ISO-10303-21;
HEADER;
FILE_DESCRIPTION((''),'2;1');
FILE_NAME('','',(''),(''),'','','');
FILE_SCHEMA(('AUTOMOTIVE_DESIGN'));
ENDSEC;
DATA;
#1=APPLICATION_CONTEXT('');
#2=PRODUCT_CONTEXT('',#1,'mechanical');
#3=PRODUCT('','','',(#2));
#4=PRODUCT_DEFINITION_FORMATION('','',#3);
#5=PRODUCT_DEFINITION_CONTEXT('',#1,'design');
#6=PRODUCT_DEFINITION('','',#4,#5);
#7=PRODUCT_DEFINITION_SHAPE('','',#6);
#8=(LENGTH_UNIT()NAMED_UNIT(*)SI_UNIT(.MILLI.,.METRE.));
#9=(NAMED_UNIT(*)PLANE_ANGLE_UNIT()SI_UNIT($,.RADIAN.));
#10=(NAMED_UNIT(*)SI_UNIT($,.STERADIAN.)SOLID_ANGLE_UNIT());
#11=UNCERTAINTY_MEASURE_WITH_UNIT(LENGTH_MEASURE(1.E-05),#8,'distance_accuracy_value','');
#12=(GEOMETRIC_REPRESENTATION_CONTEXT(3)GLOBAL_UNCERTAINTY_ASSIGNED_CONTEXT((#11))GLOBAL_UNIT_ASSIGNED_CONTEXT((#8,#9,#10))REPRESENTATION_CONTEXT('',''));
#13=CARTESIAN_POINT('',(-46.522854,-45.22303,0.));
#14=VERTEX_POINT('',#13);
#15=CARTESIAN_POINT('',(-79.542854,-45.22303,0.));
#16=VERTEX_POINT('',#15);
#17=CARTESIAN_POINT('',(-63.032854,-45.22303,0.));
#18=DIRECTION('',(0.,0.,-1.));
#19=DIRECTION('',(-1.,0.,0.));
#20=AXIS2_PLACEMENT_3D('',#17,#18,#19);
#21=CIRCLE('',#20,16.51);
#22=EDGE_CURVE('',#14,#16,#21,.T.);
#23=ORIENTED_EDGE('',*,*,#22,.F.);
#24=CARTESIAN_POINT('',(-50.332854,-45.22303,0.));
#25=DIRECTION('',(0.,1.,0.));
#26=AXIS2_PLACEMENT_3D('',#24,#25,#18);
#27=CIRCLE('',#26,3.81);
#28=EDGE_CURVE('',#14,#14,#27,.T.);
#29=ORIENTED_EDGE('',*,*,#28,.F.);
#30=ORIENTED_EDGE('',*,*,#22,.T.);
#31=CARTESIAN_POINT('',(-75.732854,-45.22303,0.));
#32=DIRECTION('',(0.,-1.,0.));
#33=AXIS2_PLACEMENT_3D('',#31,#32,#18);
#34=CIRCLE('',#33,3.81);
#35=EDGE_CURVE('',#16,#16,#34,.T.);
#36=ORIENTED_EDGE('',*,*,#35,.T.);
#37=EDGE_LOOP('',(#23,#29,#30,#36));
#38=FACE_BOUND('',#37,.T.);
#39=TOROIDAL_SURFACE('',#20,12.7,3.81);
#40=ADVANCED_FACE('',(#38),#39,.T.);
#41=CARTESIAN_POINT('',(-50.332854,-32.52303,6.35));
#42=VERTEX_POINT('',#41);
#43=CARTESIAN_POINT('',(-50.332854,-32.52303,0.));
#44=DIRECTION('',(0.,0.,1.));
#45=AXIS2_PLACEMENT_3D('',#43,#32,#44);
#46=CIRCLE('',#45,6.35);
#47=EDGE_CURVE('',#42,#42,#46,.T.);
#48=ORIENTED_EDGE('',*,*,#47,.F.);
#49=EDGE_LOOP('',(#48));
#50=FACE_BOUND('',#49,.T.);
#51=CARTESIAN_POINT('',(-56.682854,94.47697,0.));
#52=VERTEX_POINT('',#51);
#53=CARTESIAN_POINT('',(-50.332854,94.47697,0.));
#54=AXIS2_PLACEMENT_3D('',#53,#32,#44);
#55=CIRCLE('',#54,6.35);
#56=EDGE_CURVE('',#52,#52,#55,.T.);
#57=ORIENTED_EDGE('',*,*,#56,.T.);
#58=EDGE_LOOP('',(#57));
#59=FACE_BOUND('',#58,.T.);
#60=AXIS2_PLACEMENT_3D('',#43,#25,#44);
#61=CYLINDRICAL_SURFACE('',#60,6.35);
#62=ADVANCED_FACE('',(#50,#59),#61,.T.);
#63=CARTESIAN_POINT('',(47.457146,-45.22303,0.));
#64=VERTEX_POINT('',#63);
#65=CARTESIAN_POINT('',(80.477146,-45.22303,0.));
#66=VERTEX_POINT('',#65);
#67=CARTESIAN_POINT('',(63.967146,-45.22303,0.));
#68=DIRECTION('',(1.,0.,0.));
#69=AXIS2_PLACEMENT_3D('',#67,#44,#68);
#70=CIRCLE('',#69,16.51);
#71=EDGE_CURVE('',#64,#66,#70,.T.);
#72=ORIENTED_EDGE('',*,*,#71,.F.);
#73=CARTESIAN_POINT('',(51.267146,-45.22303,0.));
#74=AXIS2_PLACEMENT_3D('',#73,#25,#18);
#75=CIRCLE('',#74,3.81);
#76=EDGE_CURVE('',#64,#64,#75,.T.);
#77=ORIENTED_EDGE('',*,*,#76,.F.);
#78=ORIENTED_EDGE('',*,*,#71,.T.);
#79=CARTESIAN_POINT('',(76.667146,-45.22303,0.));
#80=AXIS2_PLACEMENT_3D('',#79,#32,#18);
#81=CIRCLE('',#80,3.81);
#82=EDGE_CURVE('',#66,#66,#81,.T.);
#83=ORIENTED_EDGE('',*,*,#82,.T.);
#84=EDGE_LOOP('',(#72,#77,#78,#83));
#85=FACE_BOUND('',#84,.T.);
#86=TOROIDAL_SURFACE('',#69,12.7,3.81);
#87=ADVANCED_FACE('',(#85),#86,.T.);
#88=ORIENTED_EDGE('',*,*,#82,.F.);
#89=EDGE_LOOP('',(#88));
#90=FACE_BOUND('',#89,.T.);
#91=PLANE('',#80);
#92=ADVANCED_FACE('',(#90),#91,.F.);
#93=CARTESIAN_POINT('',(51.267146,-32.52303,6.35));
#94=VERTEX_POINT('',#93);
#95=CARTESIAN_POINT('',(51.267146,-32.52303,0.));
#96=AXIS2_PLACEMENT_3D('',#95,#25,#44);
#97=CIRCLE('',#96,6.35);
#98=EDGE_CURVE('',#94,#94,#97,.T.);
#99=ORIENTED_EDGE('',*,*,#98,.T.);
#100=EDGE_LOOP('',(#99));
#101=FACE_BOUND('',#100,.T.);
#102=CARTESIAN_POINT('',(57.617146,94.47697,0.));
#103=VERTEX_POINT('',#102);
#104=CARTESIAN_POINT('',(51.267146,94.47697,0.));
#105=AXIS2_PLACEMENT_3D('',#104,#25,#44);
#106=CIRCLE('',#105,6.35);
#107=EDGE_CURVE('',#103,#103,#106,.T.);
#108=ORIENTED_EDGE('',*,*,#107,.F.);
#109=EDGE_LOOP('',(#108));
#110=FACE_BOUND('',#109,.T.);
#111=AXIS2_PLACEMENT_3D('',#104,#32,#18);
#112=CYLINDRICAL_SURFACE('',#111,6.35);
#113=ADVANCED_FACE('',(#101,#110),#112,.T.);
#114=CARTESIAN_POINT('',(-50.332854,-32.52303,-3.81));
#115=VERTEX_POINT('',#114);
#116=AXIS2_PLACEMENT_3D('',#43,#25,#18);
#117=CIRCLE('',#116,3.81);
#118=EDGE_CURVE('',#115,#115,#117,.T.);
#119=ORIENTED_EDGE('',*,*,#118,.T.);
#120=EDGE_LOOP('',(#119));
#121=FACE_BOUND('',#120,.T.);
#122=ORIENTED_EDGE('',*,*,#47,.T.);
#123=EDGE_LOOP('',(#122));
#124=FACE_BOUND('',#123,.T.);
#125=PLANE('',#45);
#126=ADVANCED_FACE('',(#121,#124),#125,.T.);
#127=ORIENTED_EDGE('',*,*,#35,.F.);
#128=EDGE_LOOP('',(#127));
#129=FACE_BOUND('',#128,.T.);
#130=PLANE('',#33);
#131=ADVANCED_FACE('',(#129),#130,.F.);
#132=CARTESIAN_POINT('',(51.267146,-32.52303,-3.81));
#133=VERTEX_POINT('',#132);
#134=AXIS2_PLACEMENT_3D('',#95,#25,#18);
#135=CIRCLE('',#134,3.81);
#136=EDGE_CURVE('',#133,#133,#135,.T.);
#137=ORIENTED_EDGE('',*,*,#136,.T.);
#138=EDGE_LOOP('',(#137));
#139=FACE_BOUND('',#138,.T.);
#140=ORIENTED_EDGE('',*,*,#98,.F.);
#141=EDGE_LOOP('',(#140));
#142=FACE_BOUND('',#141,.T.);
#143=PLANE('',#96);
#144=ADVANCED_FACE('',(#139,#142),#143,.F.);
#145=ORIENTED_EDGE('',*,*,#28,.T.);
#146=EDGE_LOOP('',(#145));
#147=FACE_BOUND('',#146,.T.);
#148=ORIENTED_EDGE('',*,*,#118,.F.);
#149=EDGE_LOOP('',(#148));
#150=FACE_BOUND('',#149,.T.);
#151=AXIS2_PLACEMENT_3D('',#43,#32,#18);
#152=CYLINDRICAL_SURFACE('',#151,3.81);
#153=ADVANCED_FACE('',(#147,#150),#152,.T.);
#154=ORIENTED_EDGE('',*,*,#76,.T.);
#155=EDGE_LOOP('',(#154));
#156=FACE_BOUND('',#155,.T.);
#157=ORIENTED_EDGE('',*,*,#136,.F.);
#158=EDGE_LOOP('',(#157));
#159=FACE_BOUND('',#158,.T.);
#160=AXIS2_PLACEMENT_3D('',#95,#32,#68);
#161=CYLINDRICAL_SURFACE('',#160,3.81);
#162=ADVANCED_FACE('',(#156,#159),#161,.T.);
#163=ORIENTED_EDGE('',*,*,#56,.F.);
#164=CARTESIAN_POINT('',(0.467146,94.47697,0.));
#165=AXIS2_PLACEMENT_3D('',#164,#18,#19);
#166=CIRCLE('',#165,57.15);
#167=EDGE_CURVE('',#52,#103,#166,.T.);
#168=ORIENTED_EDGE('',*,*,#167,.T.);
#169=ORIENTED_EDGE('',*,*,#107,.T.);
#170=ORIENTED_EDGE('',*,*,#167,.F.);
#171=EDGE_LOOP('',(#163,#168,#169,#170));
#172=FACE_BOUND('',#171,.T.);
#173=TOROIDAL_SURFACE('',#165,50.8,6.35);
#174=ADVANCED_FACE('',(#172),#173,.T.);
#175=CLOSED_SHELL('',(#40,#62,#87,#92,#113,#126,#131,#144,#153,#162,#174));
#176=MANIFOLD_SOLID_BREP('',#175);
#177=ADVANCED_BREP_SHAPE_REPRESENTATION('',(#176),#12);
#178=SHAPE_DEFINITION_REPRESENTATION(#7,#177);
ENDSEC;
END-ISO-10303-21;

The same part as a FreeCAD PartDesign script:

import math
import FreeCAD as App
import Part
import Sketcher

V = App.Vector
Q = App.Units.Quantity

doc = App.newDocument("Part")
body = doc.addObject("PartDesign::Body", "Body")

sketch1 = doc.addObject("Sketcher::SketchObject", "Sketch")
body.addObject(sketch1)
sketch1.AttachmentSupport = (doc.XZ_Plane, [""])
sketch1.MapMode = "FlatFace"
sketch1.AttachmentOffset = App.Placement(V(0, 0, 32.52303), App.Rotation())
sketch1.addGeometry(Part.Circle(V(51.267146, 0, 0), V(0, 0, 1), 6.35), False)
sketch1.addConstraint([
    Sketcher.Constraint("PointOnObject", 0, 3, -1),
    Sketcher.Constraint("Diameter", 0, Q("0.5 in")),
    Sketcher.Constraint("DistanceX", -1, 1, 0, 3, Q("51.267146 mm")),
])

sketch2 = doc.addObject("Sketcher::SketchObject", "Sketch001")
body.addObject(sketch2)
sketch2.AttachmentSupport = (doc.XY_Plane, [""])
sketch2.MapMode = "FlatFace"
sketch2.addGeometry([
    Part.LineSegment(V(51.267146, -32.52303, 0), V(51.267146, 94.47697, 0)),
    Part.ArcOfCircle(Part.Circle(V(0.467146, 94.47697, 0), V(0, 0, 1), 50.8), math.radians(0), math.radians(180)),
    Part.LineSegment(V(-50.332854, 94.47697, 0), V(-50.332854, -32.52303, 0)),
], False)
sketch2.addConstraint([
    Sketcher.Constraint("Tangent", 0, 2, 1, 1),
    Sketcher.Constraint("Tangent", 1, 2, 2, 1),
    Sketcher.Constraint("Vertical", 0),
    Sketcher.Constraint("Vertical", 2),
    Sketcher.Constraint("Horizontal", 0, 1, 2, 2),
    Sketcher.Constraint("Radius", 1, Q("2 in")),
    Sketcher.Constraint("DistanceY", 0, 1, 0, 2, Q("5 in")),
    Sketcher.Constraint("DistanceY", -1, 1, 1, 3, Q("94.47697 mm")),
    Sketcher.Constraint("DistanceX", -1, 1, 1, 3, Q("0.467146 mm")),
])
doc.recompute()

additivepipe = doc.addObject("PartDesign::AdditivePipe", "AdditivePipe")
body.addObject(additivepipe)
additivepipe.Profile = sketch1
additivepipe.Spine = (sketch2, ["Edge1", "Edge2", "Edge3"])

sketch3 = doc.addObject("Sketcher::SketchObject", "Sketch002")
body.addObject(sketch3)
sketch3.AttachmentSupport = (doc.XZ_Plane, [""])
sketch3.MapMode = "FlatFace"
sketch3.AttachmentOffset = App.Placement(V(0, 0, 32.52303), App.Rotation())
sketch3.addGeometry(Part.Circle(V(-50.332854, 0, 0), V(0, 0, 1), 3.81), False)
sketch3.addConstraint([
    Sketcher.Constraint("PointOnObject", 0, 3, -1),
    Sketcher.Constraint("Diameter", 0, Q("0.3 in")),
    Sketcher.Constraint("DistanceX", 0, 3, -1, 1, Q("50.332854 mm")),
])

sketch4 = doc.addObject("Sketcher::SketchObject", "Sketch003")
body.addObject(sketch4)
sketch4.AttachmentSupport = (doc.XY_Plane, [""])
sketch4.MapMode = "FlatFace"
sketch4.addGeometry([
    Part.LineSegment(V(-50.332854, -32.52303, 0), V(-50.332854, -45.22303, 0)),
    Part.ArcOfCircle(Part.Circle(V(-63.032854, -45.22303, 0), V(0, 0, 1), 12.7), math.radians(180), math.radians(360)),
], False)
sketch4.addConstraint([
    Sketcher.Constraint("Tangent", 0, 2, 1, 2),
    Sketcher.Constraint("Vertical", 0),
    Sketcher.Constraint("Horizontal", 0, 2, 1, 1),
    Sketcher.Constraint("Radius", 1, Q("0.5 in")),
    Sketcher.Constraint("DistanceY", 0, 2, 0, 1, Q("0.5 in")),
    Sketcher.Constraint("DistanceY", 1, 3, -1, 1, Q("45.22303 mm")),
    Sketcher.Constraint("DistanceX", 1, 3, -1, 1, Q("63.032854 mm")),
])
doc.recompute()

additivepipe2 = doc.addObject("PartDesign::AdditivePipe", "AdditivePipe001")
body.addObject(additivepipe2)
additivepipe2.Profile = sketch3
additivepipe2.Spine = (sketch4, ["Edge1", "Edge2"])

sketch5 = doc.addObject("Sketcher::SketchObject", "Sketch004")
body.addObject(sketch5)
sketch5.AttachmentSupport = (doc.XZ_Plane, [""])
sketch5.MapMode = "FlatFace"
sketch5.AttachmentOffset = App.Placement(V(0, 0, 32.52303), App.Rotation())
sketch5.addGeometry(Part.Circle(V(51.267146, 0, 0), V(0, 0, 1), 3.81), False)
sketch5.addConstraint([
    Sketcher.Constraint("PointOnObject", 0, 3, -1),
    Sketcher.Constraint("Diameter", 0, Q("0.3 in")),
    Sketcher.Constraint("DistanceX", -1, 1, 0, 3, Q("51.267146 mm")),
])

sketch6 = doc.addObject("Sketcher::SketchObject", "Sketch005")
body.addObject(sketch6)
sketch6.AttachmentSupport = (doc.XY_Plane, [""])
sketch6.MapMode = "FlatFace"
sketch6.addGeometry([
    Part.LineSegment(V(51.267146, -32.52303, 0), V(51.267146, -45.22303, 0)),
    Part.ArcOfCircle(Part.Circle(V(63.967146, -45.22303, 0), V(0, 0, 1), 12.7), math.radians(180), math.radians(360)),
], False)
sketch6.addConstraint([
    Sketcher.Constraint("Tangent", 0, 2, 1, 1),
    Sketcher.Constraint("Vertical", 0),
    Sketcher.Constraint("Horizontal", 0, 2, 1, 2),
    Sketcher.Constraint("Radius", 1, Q("0.5 in")),
    Sketcher.Constraint("DistanceY", 0, 2, 0, 1, Q("0.5 in")),
    Sketcher.Constraint("DistanceY", 1, 3, -1, 1, Q("45.22303 mm")),
    Sketcher.Constraint("DistanceX", -1, 1, 1, 3, Q("63.967146 mm")),
])
doc.recompute()

additivepipe3 = doc.addObject("PartDesign::AdditivePipe", "AdditivePipe002")
body.addObject(additivepipe3)
additivepipe3.Profile = sketch5
additivepipe3.Spine = (sketch6, ["Edge1", "Edge2"])

doc.recompute()
